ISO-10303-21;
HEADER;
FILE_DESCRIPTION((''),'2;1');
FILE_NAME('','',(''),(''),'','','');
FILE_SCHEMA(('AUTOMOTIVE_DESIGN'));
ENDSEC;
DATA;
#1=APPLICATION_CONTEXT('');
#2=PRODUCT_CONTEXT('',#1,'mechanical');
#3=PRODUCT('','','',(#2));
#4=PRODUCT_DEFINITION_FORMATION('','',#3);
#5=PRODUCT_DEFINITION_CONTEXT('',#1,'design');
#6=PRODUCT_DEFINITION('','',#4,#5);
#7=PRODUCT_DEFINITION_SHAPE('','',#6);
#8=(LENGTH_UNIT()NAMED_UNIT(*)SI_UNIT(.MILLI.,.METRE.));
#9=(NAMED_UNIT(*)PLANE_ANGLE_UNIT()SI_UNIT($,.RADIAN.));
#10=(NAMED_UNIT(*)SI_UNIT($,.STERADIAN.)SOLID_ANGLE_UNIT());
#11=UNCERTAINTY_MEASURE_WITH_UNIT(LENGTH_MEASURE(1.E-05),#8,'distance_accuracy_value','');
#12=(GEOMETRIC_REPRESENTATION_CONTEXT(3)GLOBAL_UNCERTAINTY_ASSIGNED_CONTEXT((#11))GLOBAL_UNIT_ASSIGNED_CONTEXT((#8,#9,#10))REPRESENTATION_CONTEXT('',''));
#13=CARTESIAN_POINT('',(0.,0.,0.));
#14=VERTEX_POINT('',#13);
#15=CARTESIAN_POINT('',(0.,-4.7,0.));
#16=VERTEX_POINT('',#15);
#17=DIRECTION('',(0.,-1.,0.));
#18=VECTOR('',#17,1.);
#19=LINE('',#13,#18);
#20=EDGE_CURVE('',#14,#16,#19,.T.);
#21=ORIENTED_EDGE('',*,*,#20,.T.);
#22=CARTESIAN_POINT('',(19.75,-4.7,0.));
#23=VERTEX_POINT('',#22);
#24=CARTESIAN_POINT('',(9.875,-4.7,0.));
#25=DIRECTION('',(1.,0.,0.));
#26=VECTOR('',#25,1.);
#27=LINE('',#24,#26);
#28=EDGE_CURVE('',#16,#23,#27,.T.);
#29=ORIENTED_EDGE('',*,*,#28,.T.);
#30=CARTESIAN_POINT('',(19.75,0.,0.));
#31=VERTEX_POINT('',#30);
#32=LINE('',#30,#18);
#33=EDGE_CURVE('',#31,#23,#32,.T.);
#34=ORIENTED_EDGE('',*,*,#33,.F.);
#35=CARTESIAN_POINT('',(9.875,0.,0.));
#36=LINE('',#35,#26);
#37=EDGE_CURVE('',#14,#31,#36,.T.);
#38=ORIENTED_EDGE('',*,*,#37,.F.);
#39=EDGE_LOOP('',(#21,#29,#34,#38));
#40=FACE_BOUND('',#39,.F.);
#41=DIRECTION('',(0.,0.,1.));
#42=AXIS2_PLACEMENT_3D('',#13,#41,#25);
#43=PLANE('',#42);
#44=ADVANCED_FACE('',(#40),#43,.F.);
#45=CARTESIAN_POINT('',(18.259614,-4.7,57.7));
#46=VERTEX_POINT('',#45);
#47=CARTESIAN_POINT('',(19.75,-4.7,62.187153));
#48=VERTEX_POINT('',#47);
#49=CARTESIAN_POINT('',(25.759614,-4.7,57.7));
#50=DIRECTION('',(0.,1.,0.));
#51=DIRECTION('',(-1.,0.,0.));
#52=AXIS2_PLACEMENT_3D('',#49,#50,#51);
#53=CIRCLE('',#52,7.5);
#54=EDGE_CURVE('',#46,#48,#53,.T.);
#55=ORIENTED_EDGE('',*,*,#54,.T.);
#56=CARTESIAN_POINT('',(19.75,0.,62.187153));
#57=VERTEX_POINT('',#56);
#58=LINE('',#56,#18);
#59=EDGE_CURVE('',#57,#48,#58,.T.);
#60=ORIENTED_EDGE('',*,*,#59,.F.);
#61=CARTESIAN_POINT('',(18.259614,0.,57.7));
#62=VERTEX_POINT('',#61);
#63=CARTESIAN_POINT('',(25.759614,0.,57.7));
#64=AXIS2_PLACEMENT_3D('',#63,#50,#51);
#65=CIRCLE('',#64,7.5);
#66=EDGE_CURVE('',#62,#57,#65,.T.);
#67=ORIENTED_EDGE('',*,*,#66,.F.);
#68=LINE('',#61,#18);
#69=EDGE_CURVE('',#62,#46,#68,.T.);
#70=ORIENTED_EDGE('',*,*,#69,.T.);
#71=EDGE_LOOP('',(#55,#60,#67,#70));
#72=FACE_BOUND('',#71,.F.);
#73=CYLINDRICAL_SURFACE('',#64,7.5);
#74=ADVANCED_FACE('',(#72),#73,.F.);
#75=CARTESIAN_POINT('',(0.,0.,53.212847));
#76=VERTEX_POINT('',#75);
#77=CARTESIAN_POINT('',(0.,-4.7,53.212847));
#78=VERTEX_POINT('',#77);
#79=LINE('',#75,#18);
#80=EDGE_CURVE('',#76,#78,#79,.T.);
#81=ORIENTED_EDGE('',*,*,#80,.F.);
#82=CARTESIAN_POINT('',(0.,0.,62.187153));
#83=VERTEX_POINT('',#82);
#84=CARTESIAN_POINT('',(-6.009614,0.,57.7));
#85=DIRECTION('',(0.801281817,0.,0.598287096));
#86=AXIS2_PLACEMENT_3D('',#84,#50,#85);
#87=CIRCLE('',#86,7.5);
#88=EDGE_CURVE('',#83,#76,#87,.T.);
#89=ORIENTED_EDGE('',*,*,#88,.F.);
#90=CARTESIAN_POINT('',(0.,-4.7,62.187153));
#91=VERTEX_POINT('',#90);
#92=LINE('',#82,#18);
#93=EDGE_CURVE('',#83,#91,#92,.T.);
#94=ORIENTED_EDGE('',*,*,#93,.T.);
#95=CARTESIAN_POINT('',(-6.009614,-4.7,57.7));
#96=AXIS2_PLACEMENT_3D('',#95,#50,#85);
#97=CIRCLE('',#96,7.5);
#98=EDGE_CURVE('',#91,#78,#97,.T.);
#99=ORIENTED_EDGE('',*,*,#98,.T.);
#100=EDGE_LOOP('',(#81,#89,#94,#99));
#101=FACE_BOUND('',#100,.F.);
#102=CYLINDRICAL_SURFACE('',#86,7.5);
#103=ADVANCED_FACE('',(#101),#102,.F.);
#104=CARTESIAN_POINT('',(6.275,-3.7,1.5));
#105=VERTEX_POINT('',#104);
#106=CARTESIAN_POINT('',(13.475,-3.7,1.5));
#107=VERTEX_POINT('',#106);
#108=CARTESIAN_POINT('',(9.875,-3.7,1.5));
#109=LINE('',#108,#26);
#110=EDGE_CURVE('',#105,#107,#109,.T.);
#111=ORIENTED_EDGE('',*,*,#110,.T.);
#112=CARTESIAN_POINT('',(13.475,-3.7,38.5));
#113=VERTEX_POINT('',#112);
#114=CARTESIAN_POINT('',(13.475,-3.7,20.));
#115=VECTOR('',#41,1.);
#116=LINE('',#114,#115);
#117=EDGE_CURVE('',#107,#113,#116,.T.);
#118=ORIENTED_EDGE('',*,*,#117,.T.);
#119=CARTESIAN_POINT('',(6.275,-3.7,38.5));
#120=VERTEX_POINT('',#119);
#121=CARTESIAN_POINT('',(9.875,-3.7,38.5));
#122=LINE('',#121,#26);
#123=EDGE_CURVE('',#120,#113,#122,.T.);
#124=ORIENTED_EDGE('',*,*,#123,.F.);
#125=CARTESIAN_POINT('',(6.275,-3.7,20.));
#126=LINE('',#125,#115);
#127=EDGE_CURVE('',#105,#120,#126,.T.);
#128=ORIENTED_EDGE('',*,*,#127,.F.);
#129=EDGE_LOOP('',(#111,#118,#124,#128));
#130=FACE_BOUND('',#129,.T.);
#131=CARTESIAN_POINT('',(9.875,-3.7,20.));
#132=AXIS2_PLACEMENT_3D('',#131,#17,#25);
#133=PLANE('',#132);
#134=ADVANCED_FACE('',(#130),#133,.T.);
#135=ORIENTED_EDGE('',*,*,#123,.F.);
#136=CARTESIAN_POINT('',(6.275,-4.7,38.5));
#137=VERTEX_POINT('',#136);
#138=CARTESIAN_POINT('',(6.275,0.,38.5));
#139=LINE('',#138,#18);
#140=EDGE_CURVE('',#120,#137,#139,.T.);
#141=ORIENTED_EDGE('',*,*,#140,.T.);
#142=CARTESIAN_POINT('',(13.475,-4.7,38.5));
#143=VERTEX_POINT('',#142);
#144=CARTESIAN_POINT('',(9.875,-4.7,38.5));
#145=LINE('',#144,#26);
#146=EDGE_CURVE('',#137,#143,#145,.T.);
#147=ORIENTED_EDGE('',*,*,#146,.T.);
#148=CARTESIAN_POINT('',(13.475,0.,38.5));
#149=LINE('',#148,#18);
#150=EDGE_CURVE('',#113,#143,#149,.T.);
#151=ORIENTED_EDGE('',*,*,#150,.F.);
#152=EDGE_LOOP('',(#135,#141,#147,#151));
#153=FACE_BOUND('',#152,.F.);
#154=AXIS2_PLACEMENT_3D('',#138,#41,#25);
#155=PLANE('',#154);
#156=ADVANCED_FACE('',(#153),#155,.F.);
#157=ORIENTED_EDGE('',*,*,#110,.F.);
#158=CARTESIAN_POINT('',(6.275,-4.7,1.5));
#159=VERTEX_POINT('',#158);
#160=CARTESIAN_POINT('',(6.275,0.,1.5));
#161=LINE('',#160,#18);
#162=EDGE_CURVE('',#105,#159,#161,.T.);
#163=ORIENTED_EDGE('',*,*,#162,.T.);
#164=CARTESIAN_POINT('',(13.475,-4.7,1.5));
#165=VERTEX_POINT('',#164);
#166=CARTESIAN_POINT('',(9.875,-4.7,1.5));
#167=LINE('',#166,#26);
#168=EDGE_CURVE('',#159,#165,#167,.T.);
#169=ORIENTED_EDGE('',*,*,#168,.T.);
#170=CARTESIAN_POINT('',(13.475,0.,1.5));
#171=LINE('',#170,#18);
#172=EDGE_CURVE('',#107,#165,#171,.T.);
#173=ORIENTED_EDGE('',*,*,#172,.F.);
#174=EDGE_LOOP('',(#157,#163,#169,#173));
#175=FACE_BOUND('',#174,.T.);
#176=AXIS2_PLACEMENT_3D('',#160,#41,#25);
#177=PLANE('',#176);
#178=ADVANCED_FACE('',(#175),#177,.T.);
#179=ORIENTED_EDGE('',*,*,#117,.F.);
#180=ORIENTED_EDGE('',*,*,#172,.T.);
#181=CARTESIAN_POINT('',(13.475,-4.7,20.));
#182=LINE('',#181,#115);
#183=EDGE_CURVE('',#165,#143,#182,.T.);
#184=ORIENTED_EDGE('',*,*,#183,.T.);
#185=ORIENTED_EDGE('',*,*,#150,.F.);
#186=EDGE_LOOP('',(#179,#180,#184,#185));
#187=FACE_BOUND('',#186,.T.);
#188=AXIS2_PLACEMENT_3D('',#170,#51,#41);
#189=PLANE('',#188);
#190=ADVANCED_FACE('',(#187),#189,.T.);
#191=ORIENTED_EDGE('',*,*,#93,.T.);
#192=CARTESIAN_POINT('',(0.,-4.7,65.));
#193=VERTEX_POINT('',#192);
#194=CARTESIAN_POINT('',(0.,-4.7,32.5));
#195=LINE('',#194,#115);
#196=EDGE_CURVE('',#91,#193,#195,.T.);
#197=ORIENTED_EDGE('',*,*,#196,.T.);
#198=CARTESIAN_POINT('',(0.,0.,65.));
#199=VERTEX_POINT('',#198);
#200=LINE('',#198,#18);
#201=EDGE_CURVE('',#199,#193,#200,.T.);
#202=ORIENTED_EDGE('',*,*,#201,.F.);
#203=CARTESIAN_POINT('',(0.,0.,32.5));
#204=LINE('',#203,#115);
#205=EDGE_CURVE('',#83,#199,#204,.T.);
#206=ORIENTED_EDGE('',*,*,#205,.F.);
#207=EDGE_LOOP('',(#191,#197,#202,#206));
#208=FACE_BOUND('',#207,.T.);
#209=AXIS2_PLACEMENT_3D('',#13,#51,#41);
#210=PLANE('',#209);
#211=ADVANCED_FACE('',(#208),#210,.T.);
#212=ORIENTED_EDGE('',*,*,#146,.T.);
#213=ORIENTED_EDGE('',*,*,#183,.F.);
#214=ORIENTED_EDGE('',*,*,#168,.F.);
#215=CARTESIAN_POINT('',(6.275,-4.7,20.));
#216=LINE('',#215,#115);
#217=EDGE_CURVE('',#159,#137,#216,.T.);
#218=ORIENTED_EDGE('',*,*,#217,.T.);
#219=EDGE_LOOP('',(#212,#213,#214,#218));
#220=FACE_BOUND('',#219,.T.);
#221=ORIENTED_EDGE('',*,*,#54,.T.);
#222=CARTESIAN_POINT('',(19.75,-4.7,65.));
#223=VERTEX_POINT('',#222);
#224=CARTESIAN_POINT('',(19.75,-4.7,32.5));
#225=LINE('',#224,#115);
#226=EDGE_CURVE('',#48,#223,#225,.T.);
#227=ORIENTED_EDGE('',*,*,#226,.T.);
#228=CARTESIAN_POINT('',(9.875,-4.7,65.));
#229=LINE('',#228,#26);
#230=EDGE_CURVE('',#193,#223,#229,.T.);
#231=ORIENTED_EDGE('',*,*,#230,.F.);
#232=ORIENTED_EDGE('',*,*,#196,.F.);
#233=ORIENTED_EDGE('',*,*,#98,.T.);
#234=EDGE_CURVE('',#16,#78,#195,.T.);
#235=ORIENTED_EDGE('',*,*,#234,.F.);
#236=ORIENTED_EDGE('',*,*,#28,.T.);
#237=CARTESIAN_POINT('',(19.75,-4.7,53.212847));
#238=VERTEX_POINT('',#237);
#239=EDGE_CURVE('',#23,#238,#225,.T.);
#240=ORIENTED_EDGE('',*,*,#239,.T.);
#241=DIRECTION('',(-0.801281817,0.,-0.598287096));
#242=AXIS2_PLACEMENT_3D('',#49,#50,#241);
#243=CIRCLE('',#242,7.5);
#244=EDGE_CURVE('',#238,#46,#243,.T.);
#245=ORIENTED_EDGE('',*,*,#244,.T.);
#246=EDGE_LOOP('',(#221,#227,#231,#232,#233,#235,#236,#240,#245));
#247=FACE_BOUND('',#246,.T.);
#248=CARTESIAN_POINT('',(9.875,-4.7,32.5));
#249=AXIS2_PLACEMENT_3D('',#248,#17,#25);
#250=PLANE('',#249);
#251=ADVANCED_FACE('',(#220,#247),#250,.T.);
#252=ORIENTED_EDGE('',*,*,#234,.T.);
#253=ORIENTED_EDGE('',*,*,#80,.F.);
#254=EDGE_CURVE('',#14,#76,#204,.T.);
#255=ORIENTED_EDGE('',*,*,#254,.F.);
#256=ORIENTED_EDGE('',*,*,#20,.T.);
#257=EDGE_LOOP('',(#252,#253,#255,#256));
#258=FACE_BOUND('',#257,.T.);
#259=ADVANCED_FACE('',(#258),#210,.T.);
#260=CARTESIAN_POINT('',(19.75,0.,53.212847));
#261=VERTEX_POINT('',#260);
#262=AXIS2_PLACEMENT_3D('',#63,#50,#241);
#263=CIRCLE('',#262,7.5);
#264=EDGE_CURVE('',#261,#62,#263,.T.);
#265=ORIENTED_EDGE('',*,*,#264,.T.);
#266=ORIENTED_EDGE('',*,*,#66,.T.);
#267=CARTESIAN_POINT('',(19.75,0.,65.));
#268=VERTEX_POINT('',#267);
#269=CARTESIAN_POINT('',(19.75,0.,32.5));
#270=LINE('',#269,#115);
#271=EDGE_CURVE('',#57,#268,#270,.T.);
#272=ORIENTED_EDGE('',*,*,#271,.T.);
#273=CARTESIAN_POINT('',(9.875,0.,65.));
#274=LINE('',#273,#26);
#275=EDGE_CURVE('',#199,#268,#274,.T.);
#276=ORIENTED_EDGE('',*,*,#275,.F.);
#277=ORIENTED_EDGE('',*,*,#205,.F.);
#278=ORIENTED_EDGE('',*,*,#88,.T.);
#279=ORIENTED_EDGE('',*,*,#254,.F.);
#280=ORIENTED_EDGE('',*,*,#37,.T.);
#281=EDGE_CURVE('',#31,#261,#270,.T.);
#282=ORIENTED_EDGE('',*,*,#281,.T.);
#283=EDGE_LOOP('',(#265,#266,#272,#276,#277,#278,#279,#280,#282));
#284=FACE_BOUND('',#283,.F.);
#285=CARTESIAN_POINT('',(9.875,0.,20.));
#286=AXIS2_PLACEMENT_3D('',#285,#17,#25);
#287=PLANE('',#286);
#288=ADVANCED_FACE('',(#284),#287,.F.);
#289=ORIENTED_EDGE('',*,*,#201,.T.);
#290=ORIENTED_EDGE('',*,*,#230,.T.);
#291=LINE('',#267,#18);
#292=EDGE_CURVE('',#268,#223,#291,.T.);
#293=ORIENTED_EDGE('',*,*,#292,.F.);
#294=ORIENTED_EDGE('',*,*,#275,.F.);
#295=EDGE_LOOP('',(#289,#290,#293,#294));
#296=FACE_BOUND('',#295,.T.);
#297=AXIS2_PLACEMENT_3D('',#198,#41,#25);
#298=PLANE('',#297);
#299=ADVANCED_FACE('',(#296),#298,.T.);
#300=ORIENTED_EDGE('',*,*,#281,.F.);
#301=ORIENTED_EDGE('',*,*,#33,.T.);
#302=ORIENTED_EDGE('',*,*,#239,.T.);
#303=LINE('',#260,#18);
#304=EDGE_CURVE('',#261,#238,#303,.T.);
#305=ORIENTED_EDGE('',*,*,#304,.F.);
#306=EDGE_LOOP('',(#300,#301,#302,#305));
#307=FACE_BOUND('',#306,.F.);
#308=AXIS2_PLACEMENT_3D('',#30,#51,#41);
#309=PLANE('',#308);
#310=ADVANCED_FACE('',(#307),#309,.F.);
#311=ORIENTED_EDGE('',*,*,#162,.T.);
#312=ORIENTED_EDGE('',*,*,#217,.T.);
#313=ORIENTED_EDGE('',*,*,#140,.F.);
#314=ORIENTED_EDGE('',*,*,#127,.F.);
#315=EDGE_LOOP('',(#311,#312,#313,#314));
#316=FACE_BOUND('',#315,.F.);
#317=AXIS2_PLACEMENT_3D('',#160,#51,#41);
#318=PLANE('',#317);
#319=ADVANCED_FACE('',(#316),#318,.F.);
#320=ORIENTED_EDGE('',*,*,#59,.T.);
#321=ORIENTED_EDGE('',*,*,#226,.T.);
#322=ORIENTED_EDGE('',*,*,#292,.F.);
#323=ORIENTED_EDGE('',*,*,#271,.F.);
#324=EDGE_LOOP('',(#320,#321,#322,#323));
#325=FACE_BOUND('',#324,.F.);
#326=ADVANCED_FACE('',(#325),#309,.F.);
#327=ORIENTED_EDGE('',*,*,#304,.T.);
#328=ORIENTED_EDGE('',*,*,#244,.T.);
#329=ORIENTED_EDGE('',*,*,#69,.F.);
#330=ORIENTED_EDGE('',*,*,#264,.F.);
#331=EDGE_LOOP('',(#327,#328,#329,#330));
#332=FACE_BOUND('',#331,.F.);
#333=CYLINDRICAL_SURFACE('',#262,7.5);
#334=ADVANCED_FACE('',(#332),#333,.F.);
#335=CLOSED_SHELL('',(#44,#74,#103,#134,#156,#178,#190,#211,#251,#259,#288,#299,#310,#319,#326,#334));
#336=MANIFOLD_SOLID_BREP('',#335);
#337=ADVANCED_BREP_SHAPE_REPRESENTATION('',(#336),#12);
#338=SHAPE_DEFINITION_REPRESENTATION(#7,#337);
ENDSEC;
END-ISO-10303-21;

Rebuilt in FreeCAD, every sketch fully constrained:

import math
import FreeCAD as App
import Part
import Sketcher
from FreeCAD import Vector

doc = App.newDocument("Part")
body = doc.addObject("PartDesign::Body", "Body")

# Sketch on XZ plane
sketch1 = body.newObject("Sketcher::SketchObject", "Sketch")
sketch1.AttachmentSupport = (doc.getObject("XZ_Plane"), [""])
sketch1.MapMode = "FlatFace"
sketch1.addGeometry(Part.LineSegment(Vector(0, 65, 0), Vector(0, 0, 0)), False)
sketch1.addGeometry(Part.LineSegment(Vector(0, 0, 0), Vector(19.75, 0, 0)), False)
sketch1.addGeometry(Part.LineSegment(Vector(19.75, 0, 0), Vector(19.75, 65, 0)), False)
sketch1.addGeometry(Part.LineSegment(Vector(19.75, 65, 0), Vector(0, 65, 0)), False)
sketch1.addGeometry(Part.LineSegment(Vector(13.475, 1.5, 0), Vector(6.275, 1.5, 0)), False)
sketch1.addGeometry(Part.LineSegment(Vector(6.275, 1.5, 0), Vector(6.275, 38.5, 0)), False)
sketch1.addGeometry(Part.LineSegment(Vector(6.275, 38.5, 0), Vector(13.475, 38.5, 0)), False)
sketch1.addGeometry(Part.LineSegment(Vector(13.475, 38.5, 0), Vector(13.475, 1.5, 0)), False)
sketch1.addConstraint(Sketcher.Constraint("Coincident", 0, 2, 1, 1))
sketch1.addConstraint(Sketcher.Constraint("Coincident", 1, 2, 2, 1))
sketch1.addConstraint(Sketcher.Constraint("Coincident", 2, 2, 3, 1))
sketch1.addConstraint(Sketcher.Constraint("Coincident", 3, 2, 0, 1))
sketch1.addConstraint(Sketcher.Constraint("Coincident", 4, 2, 5, 1))
sketch1.addConstraint(Sketcher.Constraint("Coincident", 5, 2, 6, 1))
sketch1.addConstraint(Sketcher.Constraint("Coincident", 6, 2, 7, 1))
sketch1.addConstraint(Sketcher.Constraint("Coincident", 7, 2, 4, 1))
sketch1.addConstraint(Sketcher.Constraint("Vertical", 0))
sketch1.addConstraint(Sketcher.Constraint("Horizontal", 1))
sketch1.addConstraint(Sketcher.Constraint("Vertical", 2))
sketch1.addConstraint(Sketcher.Constraint("Horizontal", 3))
sketch1.addConstraint(Sketcher.Constraint("Horizontal", 4))
sketch1.addConstraint(Sketcher.Constraint("Vertical", 5))
sketch1.addConstraint(Sketcher.Constraint("Horizontal", 6))
sketch1.addConstraint(Sketcher.Constraint("Vertical", 7))
sketch1.addConstraint(Sketcher.Constraint("Coincident", 0, 2, -1, 1))
sketch1.addConstraint(Sketcher.Constraint("DistanceY", 0, 2, 0, 1, 65.0))
sketch1.addConstraint(Sketcher.Constraint("DistanceY", 5, 1, 5, 2, 37.0))
sketch1.addConstraint(Sketcher.Constraint("DistanceX", 4, 2, 4, 1, 7.2))
sketch1.addConstraint(Sketcher.Constraint("DistanceX", 1, 1, 1, 2, 19.75))
sketch1.addConstraint(Sketcher.Constraint("DistanceY", -1, 1, 4, 2, 1.5))
sketch1.addConstraint(Sketcher.Constraint("DistanceX", -1, 1, 4, 2, 6.275))
pad1 = body.newObject("PartDesign::Pad", "Pad")
pad1.Profile = sketch1
pad1.Length = 4.7

# Sketch on XZ plane
sketch2 = body.newObject("Sketcher::SketchObject", "Sketch001")
sketch2.AttachmentSupport = (doc.getObject("XZ_Plane"), [""])
sketch2.MapMode = "FlatFace"
sketch2.addGeometry(Part.LineSegment(Vector(6.275, 38.5, 0), Vector(6.275, 1.5, 0)), False)
sketch2.addGeometry(Part.LineSegment(Vector(6.275, 1.5, 0), Vector(13.475, 1.5, 0)), False)
sketch2.addGeometry(Part.LineSegment(Vector(13.475, 1.5, 0), Vector(13.475, 38.5, 0)), False)
sketch2.addGeometry(Part.LineSegment(Vector(13.475, 38.5, 0), Vector(6.275, 38.5, 0)), False)
sketch2.addConstraint(Sketcher.Constraint("Coincident", 0, 2, 1, 1))
sketch2.addConstraint(Sketcher.Constraint("Coincident", 1, 2, 2, 1))
sketch2.addConstraint(Sketcher.Constraint("Coincident", 2, 2, 3, 1))
sketch2.addConstraint(Sketcher.Constraint("Coincident", 3, 2, 0, 1))
sketch2.addConstraint(Sketcher.Constraint("Vertical", 0))
sketch2.addConstraint(Sketcher.Constraint("Horizontal", 1))
sketch2.addConstraint(Sketcher.Constraint("Vertical", 2))
sketch2.addConstraint(Sketcher.Constraint("Horizontal", 3))
sketch2.addConstraint(Sketcher.Constraint("DistanceY", 0, 2, 0, 1, 37.0))
sketch2.addConstraint(Sketcher.Constraint("DistanceX", 1, 1, 1, 2, 7.2))
sketch2.addConstraint(Sketcher.Constraint("DistanceY", -1, 1, 0, 2, 1.5))
sketch2.addConstraint(Sketcher.Constraint("DistanceX", -1, 1, 0, 2, 6.275))
pad2 = body.newObject("PartDesign::Pad", "Pad001")
pad2.Profile = sketch2
pad2.Length = 3.7

# Sketch on XZ plane
sketch3 = body.newObject("Sketcher::SketchObject", "Sketch002")
sketch3.AttachmentSupport = (doc.getObject("XZ_Plane"), [""])
sketch3.MapMode = "FlatFace"
sketch3.addGeometry(Part.ArcOfCircle(Part.Circle(Vector(25.759614, 57.7, 0), Vector(0, 0, 1), 7.5), math.radians(180), math.radians(216.747318)), False)
sketch3.addGeometry(Part.ArcOfCircle(Part.Circle(Vector(25.759614, 57.7, 0), Vector(0, 0, 1), 7.5), math.radians(143.252682), math.radians(180)), False)
sketch3.addGeometry(Part.LineSegment(Vector(19.75, 62.187153, 0), Vector(19.75, 53.212847, 0)), False)
sketch3.addGeometry(Part.LineSegment(Vector(0, 53.212847, 0), Vector(0, 62.187153, 0)), False)
sketch3.addGeometry(Part.ArcOfCircle(Part.Circle(Vector(-6.009614, 57.7, 0), Vector(0, 0, 1), 7.5), math.radians(-36.747318), math.radians(36.747318)), False)
sketch3.addConstraint(Sketcher.Constraint("Tangent", 0, 1, 1, 2))
sketch3.addConstraint(Sketcher.Constraint("Coincident", 1, 1, 2, 1))
sketch3.addConstraint(Sketcher.Constraint("Coincident", 2, 2, 0, 2))
sketch3.addConstraint(Sketcher.Constraint("Coincident", 3, 1, 4, 1))
sketch3.addConstraint(Sketcher.Constraint("Coincident", 4, 2, 3, 2))
sketch3.addConstraint(Sketcher.Constraint("Vertical", 2))
sketch3.addConstraint(Sketcher.Constraint("Vertical", 3))
sketch3.addConstraint(Sketcher.Constraint("Equal", 0, 1))
sketch3.addConstraint(Sketcher.Constraint("Equal", 1, 4))
sketch3.addConstraint(Sketcher.Constraint("PointOnObject", 3, 1, -2))
sketch3.addConstraint(Sketcher.Constraint("Horizontal", 1, 3, 4, 3))
sketch3.addConstraint(Sketcher.Constraint("Horizontal", 4, 3, 0, 1))
sketch3.addConstraint(Sketcher.Constraint("Horizontal", 2, 2, 3, 1))
sketch3.addConstraint(Sketcher.Constraint("Radius", 0, 7.5))
sketch3.addConstraint(Sketcher.Constraint("DistanceY", -1, 1, 0, 3, 57.7))
sketch3.addConstraint(Sketcher.Constraint("DistanceX", -1, 1, 1, 1, 19.75))
sketch3.addConstraint(Sketcher.Constraint("DistanceY", 2, 2, 2, 1, 8.974306))
pocket1 = body.newObject("PartDesign::Pocket", "Pocket")
pocket1.Profile = sketch3
pocket1.Type = "ThroughAll"
pocket1.Reversed = True

doc.recompute()
